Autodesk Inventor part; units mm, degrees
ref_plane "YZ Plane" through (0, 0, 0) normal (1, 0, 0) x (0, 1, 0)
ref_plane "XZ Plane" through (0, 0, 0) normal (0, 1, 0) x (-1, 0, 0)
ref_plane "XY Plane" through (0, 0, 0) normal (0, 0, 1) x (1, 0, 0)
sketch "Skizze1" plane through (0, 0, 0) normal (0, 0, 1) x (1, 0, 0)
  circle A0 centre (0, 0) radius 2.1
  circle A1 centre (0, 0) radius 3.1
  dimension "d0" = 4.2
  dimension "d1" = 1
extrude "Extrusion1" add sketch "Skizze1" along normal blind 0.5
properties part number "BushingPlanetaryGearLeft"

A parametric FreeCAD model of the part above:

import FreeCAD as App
import Part
import Sketcher

doc = App.newDocument("Part")
body = doc.addObject("PartDesign::Body", "Body")

sketch1 = doc.addObject("Sketcher::SketchObject", "Sketch")
body.addObject(sketch1)
sketch1.AttachmentSupport = (doc.XY_Plane, [""])
sketch1.MapMode = "FlatFace"
sketch1.addGeometry(Part.Circle(App.Vector(0, 0, 0), App.Vector(0, 0, 1), 3.1), False)
sketch1.addGeometry(Part.Circle(App.Vector(0, 0, 0), App.Vector(0, 0, 1), 2.1), False)
sketch1.addConstraint(Sketcher.Constraint("Coincident", 0, 3, -1, 1))
sketch1.addConstraint(Sketcher.Constraint("Coincident", 1, 3, -1, 1))
sketch1.addConstraint(Sketcher.Constraint("Diameter", 1, 4.2))
sketch1.addConstraint(Sketcher.Constraint("Diameter", 0, 6.2))
pad1 = doc.addObject("PartDesign::Pad", "Pad")
body.addObject(pad1)
pad1.Profile = sketch1
pad1.Length = 0.5

doc.recompute()
